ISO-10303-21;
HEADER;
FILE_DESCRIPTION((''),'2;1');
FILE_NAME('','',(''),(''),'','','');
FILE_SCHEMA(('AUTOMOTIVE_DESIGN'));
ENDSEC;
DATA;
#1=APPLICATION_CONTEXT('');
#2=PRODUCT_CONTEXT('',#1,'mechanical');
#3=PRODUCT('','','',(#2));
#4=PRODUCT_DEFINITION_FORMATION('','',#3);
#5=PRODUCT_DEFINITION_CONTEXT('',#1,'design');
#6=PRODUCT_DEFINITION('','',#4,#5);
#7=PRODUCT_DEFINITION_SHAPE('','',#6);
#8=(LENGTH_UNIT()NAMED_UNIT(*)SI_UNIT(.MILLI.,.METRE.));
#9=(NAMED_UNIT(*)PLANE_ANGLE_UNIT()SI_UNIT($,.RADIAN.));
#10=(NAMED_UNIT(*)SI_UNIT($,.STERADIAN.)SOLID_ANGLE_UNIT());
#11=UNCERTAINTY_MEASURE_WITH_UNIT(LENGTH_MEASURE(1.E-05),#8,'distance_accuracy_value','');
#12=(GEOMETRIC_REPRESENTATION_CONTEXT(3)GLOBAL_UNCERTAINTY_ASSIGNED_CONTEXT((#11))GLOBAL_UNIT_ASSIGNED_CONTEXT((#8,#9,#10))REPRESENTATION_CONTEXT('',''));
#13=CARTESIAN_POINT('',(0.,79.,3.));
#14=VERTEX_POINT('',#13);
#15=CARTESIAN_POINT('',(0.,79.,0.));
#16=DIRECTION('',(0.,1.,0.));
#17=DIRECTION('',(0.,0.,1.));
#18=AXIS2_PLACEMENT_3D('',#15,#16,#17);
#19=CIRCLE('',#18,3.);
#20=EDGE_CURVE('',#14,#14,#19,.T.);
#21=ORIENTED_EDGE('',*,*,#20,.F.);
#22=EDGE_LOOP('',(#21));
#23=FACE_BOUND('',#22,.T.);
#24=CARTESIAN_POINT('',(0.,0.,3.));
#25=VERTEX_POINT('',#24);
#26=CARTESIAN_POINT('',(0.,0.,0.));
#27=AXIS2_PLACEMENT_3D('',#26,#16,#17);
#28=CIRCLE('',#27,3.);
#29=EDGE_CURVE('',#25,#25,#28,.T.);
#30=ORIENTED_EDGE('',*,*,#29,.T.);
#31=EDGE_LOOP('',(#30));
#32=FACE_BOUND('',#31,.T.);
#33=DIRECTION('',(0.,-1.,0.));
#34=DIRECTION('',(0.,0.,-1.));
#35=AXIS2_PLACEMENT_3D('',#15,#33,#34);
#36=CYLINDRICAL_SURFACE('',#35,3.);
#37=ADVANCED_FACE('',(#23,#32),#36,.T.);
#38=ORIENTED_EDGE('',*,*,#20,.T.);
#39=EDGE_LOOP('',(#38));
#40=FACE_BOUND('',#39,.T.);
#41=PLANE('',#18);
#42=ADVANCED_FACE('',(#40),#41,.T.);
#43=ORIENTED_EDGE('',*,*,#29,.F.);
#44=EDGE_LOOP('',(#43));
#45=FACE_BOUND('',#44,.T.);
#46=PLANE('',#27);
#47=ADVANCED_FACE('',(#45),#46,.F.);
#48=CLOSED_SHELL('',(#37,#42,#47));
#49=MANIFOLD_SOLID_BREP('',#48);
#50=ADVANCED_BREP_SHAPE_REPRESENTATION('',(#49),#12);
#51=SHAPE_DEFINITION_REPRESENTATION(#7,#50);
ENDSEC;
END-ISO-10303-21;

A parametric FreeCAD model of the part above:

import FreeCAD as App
import Part
import Sketcher

V = App.Vector

doc = App.newDocument("Part")
body = doc.addObject("PartDesign::Body", "Body")

# Sketch on XZ plane
sketch1 = body.newObject("Sketcher::SketchObject", "Sketch")
sketch1.AttachmentSupport = (doc.getObject("XZ_Plane"), [""])
sketch1.MapMode = "FlatFace"
sketch1.addGeometry(Part.Circle(V(0, 0, 0), V(0, 0, 1), 3), False)
sketch1.addConstraint([
    Sketcher.Constraint("Coincident", 0, 3, -1, 1),
    Sketcher.Constraint("Diameter", 0, 6.0),
])
pad1 = body.newObject("PartDesign::Pad", "Pad")
pad1.Profile = sketch1
pad1.Length = 79
pad1.Reversed = True

doc.recompute()
